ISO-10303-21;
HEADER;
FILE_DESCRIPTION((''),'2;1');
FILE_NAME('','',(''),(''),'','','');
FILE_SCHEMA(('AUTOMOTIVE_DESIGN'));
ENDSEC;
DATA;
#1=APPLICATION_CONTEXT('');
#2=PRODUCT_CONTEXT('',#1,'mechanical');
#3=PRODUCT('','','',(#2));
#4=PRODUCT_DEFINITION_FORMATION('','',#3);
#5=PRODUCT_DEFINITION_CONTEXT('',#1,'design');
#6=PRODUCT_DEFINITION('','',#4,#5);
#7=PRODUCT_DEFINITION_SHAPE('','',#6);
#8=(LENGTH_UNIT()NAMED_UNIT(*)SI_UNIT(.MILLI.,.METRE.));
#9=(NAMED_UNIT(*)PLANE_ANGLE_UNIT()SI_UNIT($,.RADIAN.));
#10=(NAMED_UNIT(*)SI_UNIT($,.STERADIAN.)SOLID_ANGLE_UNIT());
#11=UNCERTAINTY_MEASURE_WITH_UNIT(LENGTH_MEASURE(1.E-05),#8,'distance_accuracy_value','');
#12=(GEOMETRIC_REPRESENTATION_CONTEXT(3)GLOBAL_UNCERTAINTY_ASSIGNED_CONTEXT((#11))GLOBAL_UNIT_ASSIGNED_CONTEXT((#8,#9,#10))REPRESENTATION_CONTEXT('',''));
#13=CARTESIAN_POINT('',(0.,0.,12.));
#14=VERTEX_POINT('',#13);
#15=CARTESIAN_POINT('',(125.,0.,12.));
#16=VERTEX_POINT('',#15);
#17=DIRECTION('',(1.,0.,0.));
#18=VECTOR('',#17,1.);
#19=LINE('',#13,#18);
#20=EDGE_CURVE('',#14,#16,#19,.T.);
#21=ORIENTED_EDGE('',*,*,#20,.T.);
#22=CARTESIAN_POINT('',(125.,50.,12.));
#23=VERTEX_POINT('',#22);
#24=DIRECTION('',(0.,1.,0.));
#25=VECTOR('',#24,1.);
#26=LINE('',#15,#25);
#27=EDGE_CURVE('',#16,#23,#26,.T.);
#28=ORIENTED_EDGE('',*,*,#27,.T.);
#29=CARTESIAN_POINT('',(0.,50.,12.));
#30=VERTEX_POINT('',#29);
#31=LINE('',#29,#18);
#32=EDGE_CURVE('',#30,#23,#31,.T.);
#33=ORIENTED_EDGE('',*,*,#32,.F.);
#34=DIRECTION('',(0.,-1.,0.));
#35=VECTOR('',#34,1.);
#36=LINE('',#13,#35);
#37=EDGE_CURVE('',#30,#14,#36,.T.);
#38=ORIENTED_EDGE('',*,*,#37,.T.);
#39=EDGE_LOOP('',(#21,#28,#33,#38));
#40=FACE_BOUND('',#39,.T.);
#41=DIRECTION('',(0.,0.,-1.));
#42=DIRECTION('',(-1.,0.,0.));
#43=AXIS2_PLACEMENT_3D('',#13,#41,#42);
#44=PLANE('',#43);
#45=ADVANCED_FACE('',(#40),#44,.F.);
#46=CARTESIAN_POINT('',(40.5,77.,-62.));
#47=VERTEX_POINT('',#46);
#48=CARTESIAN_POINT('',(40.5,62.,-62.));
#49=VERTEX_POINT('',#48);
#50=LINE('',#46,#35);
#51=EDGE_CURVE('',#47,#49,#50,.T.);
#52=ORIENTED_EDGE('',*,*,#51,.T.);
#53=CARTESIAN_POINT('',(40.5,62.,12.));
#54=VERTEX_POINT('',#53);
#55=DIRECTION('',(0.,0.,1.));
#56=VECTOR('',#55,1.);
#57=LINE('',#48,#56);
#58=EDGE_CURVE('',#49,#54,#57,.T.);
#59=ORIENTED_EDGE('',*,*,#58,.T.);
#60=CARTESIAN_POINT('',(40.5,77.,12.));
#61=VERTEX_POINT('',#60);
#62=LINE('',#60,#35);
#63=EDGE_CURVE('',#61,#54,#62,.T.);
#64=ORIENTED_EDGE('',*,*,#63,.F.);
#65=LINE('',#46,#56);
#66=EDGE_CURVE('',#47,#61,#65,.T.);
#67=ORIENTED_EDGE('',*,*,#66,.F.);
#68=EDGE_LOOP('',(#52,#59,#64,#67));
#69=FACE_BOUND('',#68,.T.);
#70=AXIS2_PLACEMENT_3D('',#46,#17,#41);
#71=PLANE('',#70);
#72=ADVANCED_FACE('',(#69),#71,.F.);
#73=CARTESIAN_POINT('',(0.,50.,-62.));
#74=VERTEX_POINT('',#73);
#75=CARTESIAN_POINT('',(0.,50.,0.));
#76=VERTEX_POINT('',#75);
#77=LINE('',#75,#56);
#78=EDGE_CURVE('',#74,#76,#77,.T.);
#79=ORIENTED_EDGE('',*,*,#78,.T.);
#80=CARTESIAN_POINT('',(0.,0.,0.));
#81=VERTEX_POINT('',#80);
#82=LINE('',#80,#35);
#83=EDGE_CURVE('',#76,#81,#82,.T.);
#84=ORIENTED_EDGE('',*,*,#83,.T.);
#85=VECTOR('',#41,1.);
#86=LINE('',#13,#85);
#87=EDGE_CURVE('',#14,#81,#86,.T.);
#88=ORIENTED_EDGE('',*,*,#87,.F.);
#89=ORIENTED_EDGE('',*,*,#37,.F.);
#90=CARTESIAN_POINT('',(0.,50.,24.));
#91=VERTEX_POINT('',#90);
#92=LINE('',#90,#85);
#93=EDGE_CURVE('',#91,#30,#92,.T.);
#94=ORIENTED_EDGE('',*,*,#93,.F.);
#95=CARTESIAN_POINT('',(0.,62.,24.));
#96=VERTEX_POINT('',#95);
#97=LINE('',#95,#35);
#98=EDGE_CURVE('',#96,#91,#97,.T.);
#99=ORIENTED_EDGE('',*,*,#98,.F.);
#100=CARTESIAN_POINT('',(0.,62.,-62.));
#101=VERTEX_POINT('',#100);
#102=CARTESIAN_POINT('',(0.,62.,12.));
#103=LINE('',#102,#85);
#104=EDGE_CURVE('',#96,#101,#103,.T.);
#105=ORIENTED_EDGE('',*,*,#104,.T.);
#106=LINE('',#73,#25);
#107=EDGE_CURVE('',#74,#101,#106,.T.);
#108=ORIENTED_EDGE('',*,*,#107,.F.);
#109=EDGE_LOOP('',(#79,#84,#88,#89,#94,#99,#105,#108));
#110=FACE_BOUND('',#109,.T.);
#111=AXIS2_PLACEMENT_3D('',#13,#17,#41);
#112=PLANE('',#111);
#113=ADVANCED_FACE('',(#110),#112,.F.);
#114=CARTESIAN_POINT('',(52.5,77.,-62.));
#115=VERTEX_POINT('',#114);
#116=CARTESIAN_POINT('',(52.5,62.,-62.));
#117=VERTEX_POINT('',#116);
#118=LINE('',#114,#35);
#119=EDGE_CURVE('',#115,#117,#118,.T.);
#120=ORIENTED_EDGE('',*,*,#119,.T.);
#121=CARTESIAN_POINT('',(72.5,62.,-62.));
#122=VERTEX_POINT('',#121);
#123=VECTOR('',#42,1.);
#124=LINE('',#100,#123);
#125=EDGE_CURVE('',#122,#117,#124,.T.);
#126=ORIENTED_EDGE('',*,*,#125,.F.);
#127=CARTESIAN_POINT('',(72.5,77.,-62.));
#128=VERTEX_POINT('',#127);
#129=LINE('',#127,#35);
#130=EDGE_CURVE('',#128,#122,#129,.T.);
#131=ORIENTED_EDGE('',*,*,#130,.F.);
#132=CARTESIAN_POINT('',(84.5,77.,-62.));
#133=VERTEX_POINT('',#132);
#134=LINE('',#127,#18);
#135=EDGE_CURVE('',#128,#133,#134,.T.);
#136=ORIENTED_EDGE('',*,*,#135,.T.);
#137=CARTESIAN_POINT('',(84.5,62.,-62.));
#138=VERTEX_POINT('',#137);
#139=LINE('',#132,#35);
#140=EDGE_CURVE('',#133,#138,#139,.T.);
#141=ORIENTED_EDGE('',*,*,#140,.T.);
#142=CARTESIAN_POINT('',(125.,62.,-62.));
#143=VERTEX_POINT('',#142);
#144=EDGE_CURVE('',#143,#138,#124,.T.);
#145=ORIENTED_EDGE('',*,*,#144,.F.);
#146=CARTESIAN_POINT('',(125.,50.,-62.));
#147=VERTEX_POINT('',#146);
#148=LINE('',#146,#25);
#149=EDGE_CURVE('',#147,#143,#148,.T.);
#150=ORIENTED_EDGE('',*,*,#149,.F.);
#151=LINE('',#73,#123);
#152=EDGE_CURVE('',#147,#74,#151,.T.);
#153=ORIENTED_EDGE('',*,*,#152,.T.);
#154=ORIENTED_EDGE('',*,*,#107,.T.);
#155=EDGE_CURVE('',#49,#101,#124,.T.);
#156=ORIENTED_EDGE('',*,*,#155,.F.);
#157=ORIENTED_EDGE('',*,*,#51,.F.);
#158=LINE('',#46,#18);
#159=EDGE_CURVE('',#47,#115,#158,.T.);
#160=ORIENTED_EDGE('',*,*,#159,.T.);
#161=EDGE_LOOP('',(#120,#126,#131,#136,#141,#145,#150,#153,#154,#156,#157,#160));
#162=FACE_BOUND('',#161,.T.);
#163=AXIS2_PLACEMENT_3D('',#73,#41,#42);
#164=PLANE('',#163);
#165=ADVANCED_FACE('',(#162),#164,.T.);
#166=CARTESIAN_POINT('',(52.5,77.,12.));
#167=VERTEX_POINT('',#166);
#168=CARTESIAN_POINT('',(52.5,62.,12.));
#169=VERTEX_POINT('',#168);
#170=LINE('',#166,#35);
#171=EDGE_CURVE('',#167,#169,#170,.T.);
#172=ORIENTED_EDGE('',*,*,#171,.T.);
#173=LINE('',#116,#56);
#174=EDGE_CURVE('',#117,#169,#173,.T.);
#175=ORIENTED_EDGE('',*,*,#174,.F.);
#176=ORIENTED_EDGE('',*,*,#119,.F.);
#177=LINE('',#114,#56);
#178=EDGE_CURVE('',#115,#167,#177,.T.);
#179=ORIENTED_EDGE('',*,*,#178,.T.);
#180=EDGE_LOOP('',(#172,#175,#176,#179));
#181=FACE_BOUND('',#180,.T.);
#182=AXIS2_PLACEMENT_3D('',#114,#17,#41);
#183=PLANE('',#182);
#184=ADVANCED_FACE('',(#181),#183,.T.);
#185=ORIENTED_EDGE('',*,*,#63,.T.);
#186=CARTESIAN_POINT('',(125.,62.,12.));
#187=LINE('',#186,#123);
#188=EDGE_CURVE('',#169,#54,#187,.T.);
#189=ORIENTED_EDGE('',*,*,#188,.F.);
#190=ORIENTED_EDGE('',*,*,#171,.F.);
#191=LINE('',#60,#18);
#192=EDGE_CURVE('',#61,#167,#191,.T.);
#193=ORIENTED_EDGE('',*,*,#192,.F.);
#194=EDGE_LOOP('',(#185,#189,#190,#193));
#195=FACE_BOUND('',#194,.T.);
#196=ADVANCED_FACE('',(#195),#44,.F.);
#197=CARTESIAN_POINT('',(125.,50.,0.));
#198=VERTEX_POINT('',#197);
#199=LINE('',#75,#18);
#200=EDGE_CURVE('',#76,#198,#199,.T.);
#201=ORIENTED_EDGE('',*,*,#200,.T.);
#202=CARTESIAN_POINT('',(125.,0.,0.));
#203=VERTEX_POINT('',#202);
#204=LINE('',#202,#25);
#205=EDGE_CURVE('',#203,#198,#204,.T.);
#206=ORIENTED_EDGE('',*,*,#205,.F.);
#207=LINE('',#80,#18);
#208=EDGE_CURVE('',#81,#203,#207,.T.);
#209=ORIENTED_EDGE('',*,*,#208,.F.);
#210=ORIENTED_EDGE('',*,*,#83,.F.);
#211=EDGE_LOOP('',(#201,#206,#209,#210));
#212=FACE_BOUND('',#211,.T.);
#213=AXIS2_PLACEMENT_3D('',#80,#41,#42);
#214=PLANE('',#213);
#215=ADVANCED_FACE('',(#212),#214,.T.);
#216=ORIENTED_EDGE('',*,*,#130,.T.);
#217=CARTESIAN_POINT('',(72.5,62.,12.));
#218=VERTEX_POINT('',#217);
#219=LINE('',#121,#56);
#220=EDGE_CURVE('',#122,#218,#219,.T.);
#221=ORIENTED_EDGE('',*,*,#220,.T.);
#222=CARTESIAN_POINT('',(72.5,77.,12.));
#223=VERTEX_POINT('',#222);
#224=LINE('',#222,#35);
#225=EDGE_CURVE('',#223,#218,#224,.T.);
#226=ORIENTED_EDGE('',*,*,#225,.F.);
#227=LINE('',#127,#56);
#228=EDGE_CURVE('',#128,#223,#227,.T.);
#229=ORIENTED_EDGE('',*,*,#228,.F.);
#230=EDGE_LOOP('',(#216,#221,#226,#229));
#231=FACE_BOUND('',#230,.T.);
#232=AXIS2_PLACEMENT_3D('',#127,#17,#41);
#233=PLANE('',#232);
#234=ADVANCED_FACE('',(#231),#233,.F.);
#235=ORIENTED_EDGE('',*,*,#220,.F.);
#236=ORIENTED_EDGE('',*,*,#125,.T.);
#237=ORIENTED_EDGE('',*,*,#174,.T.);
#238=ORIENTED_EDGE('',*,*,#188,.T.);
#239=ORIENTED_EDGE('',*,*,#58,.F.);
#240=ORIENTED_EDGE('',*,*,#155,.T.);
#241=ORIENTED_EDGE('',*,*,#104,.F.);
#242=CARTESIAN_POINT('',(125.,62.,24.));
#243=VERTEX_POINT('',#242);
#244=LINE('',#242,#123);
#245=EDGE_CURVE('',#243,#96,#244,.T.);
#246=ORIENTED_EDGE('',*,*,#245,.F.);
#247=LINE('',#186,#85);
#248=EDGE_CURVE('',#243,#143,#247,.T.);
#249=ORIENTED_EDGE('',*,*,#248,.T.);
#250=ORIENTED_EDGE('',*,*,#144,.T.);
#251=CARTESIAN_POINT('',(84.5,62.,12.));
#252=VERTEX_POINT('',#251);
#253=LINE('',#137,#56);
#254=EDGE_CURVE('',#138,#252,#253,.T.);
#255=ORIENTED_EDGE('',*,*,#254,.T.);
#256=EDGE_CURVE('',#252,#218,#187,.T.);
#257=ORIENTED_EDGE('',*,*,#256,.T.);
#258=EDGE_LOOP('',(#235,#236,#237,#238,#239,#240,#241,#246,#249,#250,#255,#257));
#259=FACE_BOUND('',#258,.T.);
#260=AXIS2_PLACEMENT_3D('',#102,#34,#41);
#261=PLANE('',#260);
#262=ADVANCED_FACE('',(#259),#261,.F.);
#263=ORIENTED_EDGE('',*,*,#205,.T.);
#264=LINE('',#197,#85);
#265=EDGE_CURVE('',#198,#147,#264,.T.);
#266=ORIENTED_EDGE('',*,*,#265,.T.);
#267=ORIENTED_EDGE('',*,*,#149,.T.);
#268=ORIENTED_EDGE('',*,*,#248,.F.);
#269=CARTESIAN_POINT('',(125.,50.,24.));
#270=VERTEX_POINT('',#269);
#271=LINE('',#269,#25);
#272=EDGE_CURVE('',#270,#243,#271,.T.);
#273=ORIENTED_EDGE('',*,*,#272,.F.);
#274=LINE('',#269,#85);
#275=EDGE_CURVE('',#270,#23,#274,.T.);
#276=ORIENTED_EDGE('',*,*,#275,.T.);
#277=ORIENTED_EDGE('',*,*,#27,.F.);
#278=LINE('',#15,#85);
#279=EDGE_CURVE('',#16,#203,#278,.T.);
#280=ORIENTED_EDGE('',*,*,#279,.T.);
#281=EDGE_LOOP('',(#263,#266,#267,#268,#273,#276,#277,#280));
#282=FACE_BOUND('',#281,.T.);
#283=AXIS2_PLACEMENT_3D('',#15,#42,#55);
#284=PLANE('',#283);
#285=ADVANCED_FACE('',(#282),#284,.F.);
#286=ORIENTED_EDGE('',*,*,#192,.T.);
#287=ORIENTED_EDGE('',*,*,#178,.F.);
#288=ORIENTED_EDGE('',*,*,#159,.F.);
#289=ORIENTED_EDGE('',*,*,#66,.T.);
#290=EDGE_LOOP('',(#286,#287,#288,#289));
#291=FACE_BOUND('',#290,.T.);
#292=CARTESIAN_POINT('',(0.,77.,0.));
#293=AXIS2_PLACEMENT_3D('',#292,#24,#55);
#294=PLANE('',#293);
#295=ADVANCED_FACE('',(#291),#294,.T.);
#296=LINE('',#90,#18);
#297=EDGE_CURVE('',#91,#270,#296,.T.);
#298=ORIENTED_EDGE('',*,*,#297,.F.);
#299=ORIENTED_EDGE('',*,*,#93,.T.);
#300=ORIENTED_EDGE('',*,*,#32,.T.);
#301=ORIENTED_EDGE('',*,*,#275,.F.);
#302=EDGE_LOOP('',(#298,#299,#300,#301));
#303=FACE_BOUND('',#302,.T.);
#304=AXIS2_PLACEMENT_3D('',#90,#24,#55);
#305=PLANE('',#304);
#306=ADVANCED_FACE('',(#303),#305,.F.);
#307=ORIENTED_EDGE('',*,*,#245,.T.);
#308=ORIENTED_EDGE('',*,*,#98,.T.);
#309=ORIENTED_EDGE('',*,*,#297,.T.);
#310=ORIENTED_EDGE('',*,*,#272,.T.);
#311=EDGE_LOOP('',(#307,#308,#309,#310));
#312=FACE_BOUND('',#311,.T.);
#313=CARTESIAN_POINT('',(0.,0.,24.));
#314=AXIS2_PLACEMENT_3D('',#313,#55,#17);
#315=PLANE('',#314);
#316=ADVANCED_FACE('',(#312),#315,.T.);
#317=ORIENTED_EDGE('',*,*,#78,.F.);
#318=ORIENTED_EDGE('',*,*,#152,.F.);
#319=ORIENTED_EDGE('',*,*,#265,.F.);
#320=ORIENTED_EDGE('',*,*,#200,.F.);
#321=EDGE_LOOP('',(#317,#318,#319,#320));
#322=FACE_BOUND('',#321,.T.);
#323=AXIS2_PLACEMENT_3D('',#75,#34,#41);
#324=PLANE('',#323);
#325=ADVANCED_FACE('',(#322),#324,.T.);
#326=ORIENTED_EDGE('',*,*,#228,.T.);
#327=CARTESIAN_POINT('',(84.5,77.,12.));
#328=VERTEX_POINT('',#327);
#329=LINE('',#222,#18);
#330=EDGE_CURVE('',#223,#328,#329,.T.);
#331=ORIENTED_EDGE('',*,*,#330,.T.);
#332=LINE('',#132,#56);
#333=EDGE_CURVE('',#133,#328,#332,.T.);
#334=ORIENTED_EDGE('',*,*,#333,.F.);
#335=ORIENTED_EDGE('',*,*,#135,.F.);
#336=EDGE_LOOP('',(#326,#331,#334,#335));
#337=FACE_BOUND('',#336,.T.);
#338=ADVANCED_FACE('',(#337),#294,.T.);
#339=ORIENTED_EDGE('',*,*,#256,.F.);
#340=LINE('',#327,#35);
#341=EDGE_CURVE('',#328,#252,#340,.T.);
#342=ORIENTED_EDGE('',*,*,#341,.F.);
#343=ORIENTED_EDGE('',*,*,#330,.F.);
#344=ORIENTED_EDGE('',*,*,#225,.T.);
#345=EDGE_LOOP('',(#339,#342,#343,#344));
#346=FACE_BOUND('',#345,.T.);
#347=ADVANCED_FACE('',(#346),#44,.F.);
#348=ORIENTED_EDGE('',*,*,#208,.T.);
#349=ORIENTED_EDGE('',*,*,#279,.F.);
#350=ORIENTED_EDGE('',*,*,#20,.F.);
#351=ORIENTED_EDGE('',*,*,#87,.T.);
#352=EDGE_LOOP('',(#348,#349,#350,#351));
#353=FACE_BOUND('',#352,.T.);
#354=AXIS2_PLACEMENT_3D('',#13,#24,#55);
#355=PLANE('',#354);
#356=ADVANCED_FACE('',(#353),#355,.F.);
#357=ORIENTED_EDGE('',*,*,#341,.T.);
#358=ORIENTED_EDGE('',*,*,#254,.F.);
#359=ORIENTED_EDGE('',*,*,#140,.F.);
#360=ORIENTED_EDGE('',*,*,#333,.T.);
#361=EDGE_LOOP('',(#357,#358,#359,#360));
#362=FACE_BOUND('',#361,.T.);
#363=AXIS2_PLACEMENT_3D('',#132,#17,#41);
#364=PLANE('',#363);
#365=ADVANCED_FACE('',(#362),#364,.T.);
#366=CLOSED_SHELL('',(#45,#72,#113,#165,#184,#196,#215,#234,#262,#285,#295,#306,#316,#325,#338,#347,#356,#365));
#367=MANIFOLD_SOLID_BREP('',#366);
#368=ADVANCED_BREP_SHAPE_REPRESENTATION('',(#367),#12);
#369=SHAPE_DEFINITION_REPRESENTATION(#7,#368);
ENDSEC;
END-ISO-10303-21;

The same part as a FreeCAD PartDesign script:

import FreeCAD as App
import Part
import Sketcher
from FreeCAD import Vector
Q = App.Units.Quantity


def add_polygon(sketch, points):
    """Adds a closed chain of lines whose ends are joined by coincident constraints."""
    first, n = sketch.GeometryCount, len(points)
    for a, b in zip(points, points[1:] + points[:1]):
        sketch.addGeometry(Part.LineSegment(App.Vector(*a, 0), App.Vector(*b, 0)), False)
    for i in range(n):
        sketch.addConstraint(Sketcher.Constraint("Coincident", first + i, 2, first + (i + 1) % n, 1))

doc = App.newDocument("Part")
body = doc.addObject("PartDesign::Body", "Body")

# Sketch on XY plane
sketch1 = body.newObject("Sketcher::SketchObject", "Sketch")
sketch1.AttachmentSupport = (doc.getObject("XY_Plane"), [""])
sketch1.MapMode = "FlatFace"
add_polygon(sketch1, [(0, 62), (0, 0), (125, 0), (125, 62)])  # lines 0-3
sketch1.addConstraint([
    Sketcher.Constraint("Vertical", 0),
    Sketcher.Constraint("Horizontal", 1),
    Sketcher.Constraint("Vertical", 2),
    Sketcher.Constraint("Horizontal", 3),
    Sketcher.Constraint("Coincident", 0, 2, -1, 1),
    Sketcher.Constraint("DistanceX", 1, 1, 1, 2, Q("125 mm")),
    Sketcher.Constraint("DistanceY", 0, 2, 0, 1, Q("62 mm")),
])
pad1 = body.newObject("PartDesign::Pad", "Pad")
pad1.Profile = sketch1
pad1.Length = 12

# Sketch on XZ plane
sketch2 = body.newObject("Sketcher::SketchObject", "Sketch001")
sketch2.AttachmentSupport = (doc.getObject("XZ_Plane"), [""])
sketch2.MapMode = "FlatFace"
sketch2.AttachmentOffset = App.Placement(Vector(0, 0, -62), App.Rotation())
add_polygon(sketch2, [(0, -62), (0, 0), (125, 0), (125, -62)])  # lines 0-3
sketch2.addConstraint([
    Sketcher.Constraint("Vertical", 0),
    Sketcher.Constraint("Horizontal", 1),
    Sketcher.Constraint("Vertical", 2),
    Sketcher.Constraint("Horizontal", 3),
    Sketcher.Constraint("Coincident", 0, 2, -1, 1),
    Sketcher.Constraint("DistanceX", 1, 1, 1, 2, Q("125 mm")),
    Sketcher.Constraint("DistanceY", 0, 1, 0, 2, Q("62 mm")),
])
pad2 = body.newObject("PartDesign::Pad", "Pad001")
pad2.Profile = sketch2
pad2.Length = 12

# Sketch on XZ plane
sketch3 = body.newObject("Sketcher::SketchObject", "Sketch002")
sketch3.AttachmentSupport = (doc.getObject("XZ_Plane"), [""])
sketch3.MapMode = "FlatFace"
sketch3.AttachmentOffset = App.Placement(Vector(0, 0, -62), App.Rotation())
add_polygon(sketch3, [(40, -62), (40, 12), (52, 12), (52, -62)])  # lines 0-3
add_polygon(sketch3, [(72, -62), (72, 12), (84, 12), (84, -62)])  # lines 4-7
sketch3.addConstraint([
    Sketcher.Constraint("Vertical", 0),
    Sketcher.Constraint("Horizontal", 1),
    Sketcher.Constraint("Vertical", 2),
    Sketcher.Constraint("Horizontal", 3),
    Sketcher.Constraint("Vertical", 4),
    Sketcher.Constraint("Horizontal", 5),
    Sketcher.Constraint("Vertical", 6),
    Sketcher.Constraint("Horizontal", 7),
    Sketcher.Constraint("Horizontal", 1, 2, 4, 2),
    Sketcher.Constraint("Horizontal", 3, 2, 6, 2),
    Sketcher.Constraint("Equal", 3, 5),
    Sketcher.Constraint("DistanceX", 1, 1, 1, 2, Q("12 mm")),
    Sketcher.Constraint("DistanceY", 0, 1, 0, 2, Q("74 mm")),
    Sketcher.Constraint("DistanceY", -1, 1, 0, 2, Q("12 mm")),
    Sketcher.Constraint("DistanceX", 1, 2, 4, 2, Q("20 mm")),
    Sketcher.Constraint("DistanceX", -1, 1, 0, 2, Q("40.5 mm")),
])
pad3 = body.newObject("PartDesign::Pad", "Pad002")
pad3.Profile = sketch3
pad3.Length = 15
pad3.Reversed = True

# Sketch on XY plane
sketch4 = body.newObject("Sketcher::SketchObject", "Sketch003")
sketch4.AttachmentSupport = (doc.getObject("XY_Plane"), [""])
sketch4.MapMode = "FlatFace"
sketch4.AttachmentOffset = App.Placement(Vector(0, 0, 12), App.Rotation())
add_polygon(sketch4, [(0, 62), (0, 50), (125, 50), (125, 62)])  # lines 0-3
sketch4.addConstraint([
    Sketcher.Constraint("Vertical", 0),
    Sketcher.Constraint("Horizontal", 1),
    Sketcher.Constraint("Vertical", 2),
    Sketcher.Constraint("Horizontal", 3),
    Sketcher.Constraint("PointOnObject", 0, 2, -2),
    Sketcher.Constraint("DistanceX", 1, 1, 1, 2, Q("125 mm")),
    Sketcher.Constraint("DistanceY", 0, 2, 0, 1, Q("12 mm")),
    Sketcher.Constraint("DistanceY", -1, 1, 0, 2, Q("50 mm")),
])
pad4 = body.newObject("PartDesign::Pad", "Pad003")
pad4.Profile = sketch4
pad4.Length = 12

doc.recompute()
